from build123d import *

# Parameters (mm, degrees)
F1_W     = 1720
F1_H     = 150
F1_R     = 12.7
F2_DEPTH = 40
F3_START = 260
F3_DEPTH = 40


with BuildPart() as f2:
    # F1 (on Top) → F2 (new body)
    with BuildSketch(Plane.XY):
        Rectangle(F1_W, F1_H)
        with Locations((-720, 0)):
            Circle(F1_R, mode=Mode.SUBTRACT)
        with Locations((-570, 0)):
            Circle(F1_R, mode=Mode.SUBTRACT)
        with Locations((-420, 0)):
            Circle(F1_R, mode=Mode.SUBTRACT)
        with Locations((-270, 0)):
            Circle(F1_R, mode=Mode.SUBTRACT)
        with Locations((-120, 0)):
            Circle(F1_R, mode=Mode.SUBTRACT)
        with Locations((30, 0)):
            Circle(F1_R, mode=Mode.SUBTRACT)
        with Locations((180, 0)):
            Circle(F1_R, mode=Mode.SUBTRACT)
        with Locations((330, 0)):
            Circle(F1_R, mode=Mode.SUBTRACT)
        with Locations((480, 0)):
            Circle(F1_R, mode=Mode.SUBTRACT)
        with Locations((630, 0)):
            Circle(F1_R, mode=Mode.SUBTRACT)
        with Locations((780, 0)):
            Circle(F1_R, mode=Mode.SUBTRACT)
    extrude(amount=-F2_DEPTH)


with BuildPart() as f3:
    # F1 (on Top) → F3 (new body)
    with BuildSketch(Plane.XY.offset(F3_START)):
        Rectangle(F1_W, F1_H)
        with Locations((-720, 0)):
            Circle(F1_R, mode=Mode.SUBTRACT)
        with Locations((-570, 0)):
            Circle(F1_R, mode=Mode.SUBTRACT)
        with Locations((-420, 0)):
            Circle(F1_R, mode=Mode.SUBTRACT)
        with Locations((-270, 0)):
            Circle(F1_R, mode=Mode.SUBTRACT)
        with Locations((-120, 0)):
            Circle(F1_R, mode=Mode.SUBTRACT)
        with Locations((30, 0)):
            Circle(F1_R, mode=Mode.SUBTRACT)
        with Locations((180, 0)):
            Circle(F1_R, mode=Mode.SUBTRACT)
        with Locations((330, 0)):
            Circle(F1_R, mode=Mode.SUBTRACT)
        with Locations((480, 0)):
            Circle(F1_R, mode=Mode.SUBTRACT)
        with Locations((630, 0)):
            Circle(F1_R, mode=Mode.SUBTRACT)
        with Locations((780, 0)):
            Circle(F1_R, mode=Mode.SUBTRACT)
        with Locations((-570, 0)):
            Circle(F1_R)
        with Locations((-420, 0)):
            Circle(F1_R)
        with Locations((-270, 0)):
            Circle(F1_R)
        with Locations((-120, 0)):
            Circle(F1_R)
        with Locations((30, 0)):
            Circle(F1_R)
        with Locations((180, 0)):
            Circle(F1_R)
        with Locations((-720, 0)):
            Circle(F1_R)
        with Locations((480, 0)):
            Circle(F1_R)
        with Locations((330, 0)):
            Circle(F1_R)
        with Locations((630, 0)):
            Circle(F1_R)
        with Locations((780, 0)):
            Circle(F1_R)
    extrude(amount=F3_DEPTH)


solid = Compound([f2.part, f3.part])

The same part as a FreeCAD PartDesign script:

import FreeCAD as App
import Part
import Sketcher
Q = App.Units.Quantity

doc = App.newDocument("Part")
params = doc.addObject("Spreadsheet::Sheet", "Params")
for row, (alias, value) in enumerate([
    ("sketch1_diameter", "25.4 mm"),
    ("sketch1_width", "1720 mm"),
    ("sketch1_height", "150 mm"),
    ("pad1_length", "40 mm"),
    ("sketch2_width", "1720 mm"),
    ("sketch2_height", "150 mm"),
    ("pad2_length", "40 mm"),
], start=1):
    params.set(f"A{row}", alias)
    params.set(f"B{row}", "=" + value)
    params.setAlias(f"B{row}", alias)

body = doc.addObject("PartDesign::Body", "Body")

# Sketch on XY plane
sketch1 = doc.addObject("Sketcher::SketchObject", "Sketch")
body.addObject(sketch1)
sketch1.AttachmentSupport = (doc.XY_Plane, [""])
sketch1.MapMode = "FlatFace"
sketch1.addGeometry([
    Part.LineSegment(App.Vector(-860, 75, 0), App.Vector(-860, -75, 0)),  # 0
    Part.LineSegment(App.Vector(-860, -75, 0), App.Vector(860, -75, 0)),  # 1
    Part.LineSegment(App.Vector(860, -75, 0), App.Vector(860, 75, 0)),  # 2
    Part.LineSegment(App.Vector(860, 75, 0), App.Vector(-860, 75, 0)),  # 3
    Part.Circle(App.Vector(-720, 0, 0), App.Vector(0, 0, 1), 13),  # 4
    Part.Circle(App.Vector(-570, 0, 0), App.Vector(0, 0, 1), 13),  # 5
    Part.Circle(App.Vector(-420, 0, 0), App.Vector(0, 0, 1), 13),  # 6
    Part.Circle(App.Vector(-270, 0, 0), App.Vector(0, 0, 1), 13),  # 7
    Part.Circle(App.Vector(-120, 0, 0), App.Vector(0, 0, 1), 13),  # 8
    Part.Circle(App.Vector(30, 0, 0), App.Vector(0, 0, 1), 13),  # 9
    Part.Circle(App.Vector(180, 0, 0), App.Vector(0, 0, 1), 13),  # 10
    Part.Circle(App.Vector(330, 0, 0), App.Vector(0, 0, 1), 13),  # 11
    Part.Circle(App.Vector(480, 0, 0), App.Vector(0, 0, 1), 13),  # 12
    Part.Circle(App.Vector(630, 0, 0), App.Vector(0, 0, 1), 13),  # 13
    Part.Circle(App.Vector(780, 0, 0), App.Vector(0, 0, 1), 13),  # 14
], False)
sketch1.addConstraint([
    Sketcher.Constraint("Coincident", 0, 2, 1, 1),
    Sketcher.Constraint("Coincident", 1, 2, 2, 1),
    Sketcher.Constraint("Coincident", 2, 2, 3, 1),
    Sketcher.Constraint("Coincident", 3, 2, 0, 1),
    Sketcher.Constraint("Vertical", 0),
    Sketcher.Constraint("Horizontal", 1),
    Sketcher.Constraint("Vertical", 2),
    Sketcher.Constraint("Horizontal", 3),
    Sketcher.Constraint("Equal", 4, 5),
    Sketcher.Constraint("Equal", 5, 6),
    Sketcher.Constraint("Equal", 6, 7),
    Sketcher.Constraint("Equal", 7, 8),
    Sketcher.Constraint("Equal", 8, 9),
    Sketcher.Constraint("Equal", 9, 10),
    Sketcher.Constraint("Equal", 10, 11),
    Sketcher.Constraint("Equal", 11, 12),
    Sketcher.Constraint("Equal", 12, 13),
    Sketcher.Constraint("Equal", 13, 14),
    Sketcher.Constraint("Symmetric", 0, 2, 2, 2, -1, 1),
    Sketcher.Constraint("PointOnObject", 4, 3, -1),
    Sketcher.Constraint("PointOnObject", 5, 3, -1),
    Sketcher.Constraint("PointOnObject", 6, 3, -1),
    Sketcher.Constraint("PointOnObject", 7, 3, -1),
    Sketcher.Constraint("PointOnObject", 8, 3, -1),
    Sketcher.Constraint("PointOnObject", 9, 3, -1),
    Sketcher.Constraint("PointOnObject", 10, 3, -1),
    Sketcher.Constraint("PointOnObject", 11, 3, -1),
    Sketcher.Constraint("PointOnObject", 12, 3, -1),
    Sketcher.Constraint("PointOnObject", 13, 3, -1),
    Sketcher.Constraint("PointOnObject", 14, 3, -1),
    Sketcher.Constraint("Diameter", 4, Q("25.4 mm")),
    Sketcher.Constraint("DistanceX", 1, 1, 1, 2, Q("1720 mm")),
    Sketcher.Constraint("DistanceY", 0, 2, 0, 1, Q("150 mm")),
    Sketcher.Constraint("DistanceX", 4, 3, -1, 1, Q("720 mm")),
    Sketcher.Constraint("DistanceX", 5, 3, -1, 1, Q("570 mm")),
    Sketcher.Constraint("DistanceX", 6, 3, -1, 1, Q("420 mm")),
    Sketcher.Constraint("DistanceX", 7, 3, -1, 1, Q("270 mm")),
    Sketcher.Constraint("DistanceX", 8, 3, -1, 1, Q("120 mm")),
    Sketcher.Constraint("DistanceX", -1, 1, 9, 3, Q("30 mm")),
    Sketcher.Constraint("DistanceX", -1, 1, 10, 3, Q("180 mm")),
    Sketcher.Constraint("DistanceX", -1, 1, 11, 3, Q("330 mm")),
    Sketcher.Constraint("DistanceX", -1, 1, 12, 3, Q("480 mm")),
    Sketcher.Constraint("DistanceX", -1, 1, 13, 3, Q("630 mm")),
    Sketcher.Constraint("DistanceX", -1, 1, 14, 3, Q("780 mm")),
])
sketch1.setExpression("Constraints[30]", "Params.sketch1_diameter")
sketch1.setExpression("Constraints[31]", "Params.sketch1_width")
sketch1.setExpression("Constraints[32]", "Params.sketch1_height")
pad1 = doc.addObject("PartDesign::Pad", "Pad")
body.addObject(pad1)
pad1.Profile = sketch1
pad1.setExpression("Length", "Params.pad1_length")
pad1.Reversed = True
body2 = doc.addObject("PartDesign::Body", "Body001")

# Sketch on XY plane
sketch2 = doc.addObject("Sketcher::SketchObject", "Sketch001")
body2.addObject(sketch2)
sketch2.AttachmentSupport = (doc.getObject("XY_Plane001"), [""])
sketch2.MapMode = "FlatFace"
sketch2.AttachmentOffset = App.Placement(App.Vector(0, 0, 260), App.Rotation())
sketch2.addGeometry([
    Part.LineSegment(App.Vector(-860, 75, 0), App.Vector(-860, -75, 0)),
    Part.LineSegment(App.Vector(-860, -75, 0), App.Vector(860, -75, 0)),
    Part.LineSegment(App.Vector(860, -75, 0), App.Vector(860, 75, 0)),
    Part.LineSegment(App.Vector(860, 75, 0), App.Vector(-860, 75, 0)),
], False)
sketch2.addConstraint([
    Sketcher.Constraint("Coincident", 0, 2, 1, 1),
    Sketcher.Constraint("Coincident", 1, 2, 2, 1),
    Sketcher.Constraint("Coincident", 2, 2, 3, 1),
    Sketcher.Constraint("Coincident", 3, 2, 0, 1),
    Sketcher.Constraint("Vertical", 0),
    Sketcher.Constraint("Horizontal", 1),
    Sketcher.Constraint("Vertical", 2),
    Sketcher.Constraint("Horizontal", 3),
    Sketcher.Constraint("Symmetric", 0, 2, 2, 2, -1, 1),
    Sketcher.Constraint("DistanceX", 1, 1, 1, 2, Q("1720 mm")),
    Sketcher.Constraint("DistanceY", 0, 2, 0, 1, Q("150 mm")),
])
sketch2.setExpression("Constraints[9]", "Params.sketch2_width")
sketch2.setExpression("Constraints[10]", "Params.sketch2_height")
pad2 = doc.addObject("PartDesign::Pad", "Pad001")
body2.addObject(pad2)
pad2.Profile = sketch2
pad2.setExpression("Length", "Params.pad2_length")

doc.recompute()
